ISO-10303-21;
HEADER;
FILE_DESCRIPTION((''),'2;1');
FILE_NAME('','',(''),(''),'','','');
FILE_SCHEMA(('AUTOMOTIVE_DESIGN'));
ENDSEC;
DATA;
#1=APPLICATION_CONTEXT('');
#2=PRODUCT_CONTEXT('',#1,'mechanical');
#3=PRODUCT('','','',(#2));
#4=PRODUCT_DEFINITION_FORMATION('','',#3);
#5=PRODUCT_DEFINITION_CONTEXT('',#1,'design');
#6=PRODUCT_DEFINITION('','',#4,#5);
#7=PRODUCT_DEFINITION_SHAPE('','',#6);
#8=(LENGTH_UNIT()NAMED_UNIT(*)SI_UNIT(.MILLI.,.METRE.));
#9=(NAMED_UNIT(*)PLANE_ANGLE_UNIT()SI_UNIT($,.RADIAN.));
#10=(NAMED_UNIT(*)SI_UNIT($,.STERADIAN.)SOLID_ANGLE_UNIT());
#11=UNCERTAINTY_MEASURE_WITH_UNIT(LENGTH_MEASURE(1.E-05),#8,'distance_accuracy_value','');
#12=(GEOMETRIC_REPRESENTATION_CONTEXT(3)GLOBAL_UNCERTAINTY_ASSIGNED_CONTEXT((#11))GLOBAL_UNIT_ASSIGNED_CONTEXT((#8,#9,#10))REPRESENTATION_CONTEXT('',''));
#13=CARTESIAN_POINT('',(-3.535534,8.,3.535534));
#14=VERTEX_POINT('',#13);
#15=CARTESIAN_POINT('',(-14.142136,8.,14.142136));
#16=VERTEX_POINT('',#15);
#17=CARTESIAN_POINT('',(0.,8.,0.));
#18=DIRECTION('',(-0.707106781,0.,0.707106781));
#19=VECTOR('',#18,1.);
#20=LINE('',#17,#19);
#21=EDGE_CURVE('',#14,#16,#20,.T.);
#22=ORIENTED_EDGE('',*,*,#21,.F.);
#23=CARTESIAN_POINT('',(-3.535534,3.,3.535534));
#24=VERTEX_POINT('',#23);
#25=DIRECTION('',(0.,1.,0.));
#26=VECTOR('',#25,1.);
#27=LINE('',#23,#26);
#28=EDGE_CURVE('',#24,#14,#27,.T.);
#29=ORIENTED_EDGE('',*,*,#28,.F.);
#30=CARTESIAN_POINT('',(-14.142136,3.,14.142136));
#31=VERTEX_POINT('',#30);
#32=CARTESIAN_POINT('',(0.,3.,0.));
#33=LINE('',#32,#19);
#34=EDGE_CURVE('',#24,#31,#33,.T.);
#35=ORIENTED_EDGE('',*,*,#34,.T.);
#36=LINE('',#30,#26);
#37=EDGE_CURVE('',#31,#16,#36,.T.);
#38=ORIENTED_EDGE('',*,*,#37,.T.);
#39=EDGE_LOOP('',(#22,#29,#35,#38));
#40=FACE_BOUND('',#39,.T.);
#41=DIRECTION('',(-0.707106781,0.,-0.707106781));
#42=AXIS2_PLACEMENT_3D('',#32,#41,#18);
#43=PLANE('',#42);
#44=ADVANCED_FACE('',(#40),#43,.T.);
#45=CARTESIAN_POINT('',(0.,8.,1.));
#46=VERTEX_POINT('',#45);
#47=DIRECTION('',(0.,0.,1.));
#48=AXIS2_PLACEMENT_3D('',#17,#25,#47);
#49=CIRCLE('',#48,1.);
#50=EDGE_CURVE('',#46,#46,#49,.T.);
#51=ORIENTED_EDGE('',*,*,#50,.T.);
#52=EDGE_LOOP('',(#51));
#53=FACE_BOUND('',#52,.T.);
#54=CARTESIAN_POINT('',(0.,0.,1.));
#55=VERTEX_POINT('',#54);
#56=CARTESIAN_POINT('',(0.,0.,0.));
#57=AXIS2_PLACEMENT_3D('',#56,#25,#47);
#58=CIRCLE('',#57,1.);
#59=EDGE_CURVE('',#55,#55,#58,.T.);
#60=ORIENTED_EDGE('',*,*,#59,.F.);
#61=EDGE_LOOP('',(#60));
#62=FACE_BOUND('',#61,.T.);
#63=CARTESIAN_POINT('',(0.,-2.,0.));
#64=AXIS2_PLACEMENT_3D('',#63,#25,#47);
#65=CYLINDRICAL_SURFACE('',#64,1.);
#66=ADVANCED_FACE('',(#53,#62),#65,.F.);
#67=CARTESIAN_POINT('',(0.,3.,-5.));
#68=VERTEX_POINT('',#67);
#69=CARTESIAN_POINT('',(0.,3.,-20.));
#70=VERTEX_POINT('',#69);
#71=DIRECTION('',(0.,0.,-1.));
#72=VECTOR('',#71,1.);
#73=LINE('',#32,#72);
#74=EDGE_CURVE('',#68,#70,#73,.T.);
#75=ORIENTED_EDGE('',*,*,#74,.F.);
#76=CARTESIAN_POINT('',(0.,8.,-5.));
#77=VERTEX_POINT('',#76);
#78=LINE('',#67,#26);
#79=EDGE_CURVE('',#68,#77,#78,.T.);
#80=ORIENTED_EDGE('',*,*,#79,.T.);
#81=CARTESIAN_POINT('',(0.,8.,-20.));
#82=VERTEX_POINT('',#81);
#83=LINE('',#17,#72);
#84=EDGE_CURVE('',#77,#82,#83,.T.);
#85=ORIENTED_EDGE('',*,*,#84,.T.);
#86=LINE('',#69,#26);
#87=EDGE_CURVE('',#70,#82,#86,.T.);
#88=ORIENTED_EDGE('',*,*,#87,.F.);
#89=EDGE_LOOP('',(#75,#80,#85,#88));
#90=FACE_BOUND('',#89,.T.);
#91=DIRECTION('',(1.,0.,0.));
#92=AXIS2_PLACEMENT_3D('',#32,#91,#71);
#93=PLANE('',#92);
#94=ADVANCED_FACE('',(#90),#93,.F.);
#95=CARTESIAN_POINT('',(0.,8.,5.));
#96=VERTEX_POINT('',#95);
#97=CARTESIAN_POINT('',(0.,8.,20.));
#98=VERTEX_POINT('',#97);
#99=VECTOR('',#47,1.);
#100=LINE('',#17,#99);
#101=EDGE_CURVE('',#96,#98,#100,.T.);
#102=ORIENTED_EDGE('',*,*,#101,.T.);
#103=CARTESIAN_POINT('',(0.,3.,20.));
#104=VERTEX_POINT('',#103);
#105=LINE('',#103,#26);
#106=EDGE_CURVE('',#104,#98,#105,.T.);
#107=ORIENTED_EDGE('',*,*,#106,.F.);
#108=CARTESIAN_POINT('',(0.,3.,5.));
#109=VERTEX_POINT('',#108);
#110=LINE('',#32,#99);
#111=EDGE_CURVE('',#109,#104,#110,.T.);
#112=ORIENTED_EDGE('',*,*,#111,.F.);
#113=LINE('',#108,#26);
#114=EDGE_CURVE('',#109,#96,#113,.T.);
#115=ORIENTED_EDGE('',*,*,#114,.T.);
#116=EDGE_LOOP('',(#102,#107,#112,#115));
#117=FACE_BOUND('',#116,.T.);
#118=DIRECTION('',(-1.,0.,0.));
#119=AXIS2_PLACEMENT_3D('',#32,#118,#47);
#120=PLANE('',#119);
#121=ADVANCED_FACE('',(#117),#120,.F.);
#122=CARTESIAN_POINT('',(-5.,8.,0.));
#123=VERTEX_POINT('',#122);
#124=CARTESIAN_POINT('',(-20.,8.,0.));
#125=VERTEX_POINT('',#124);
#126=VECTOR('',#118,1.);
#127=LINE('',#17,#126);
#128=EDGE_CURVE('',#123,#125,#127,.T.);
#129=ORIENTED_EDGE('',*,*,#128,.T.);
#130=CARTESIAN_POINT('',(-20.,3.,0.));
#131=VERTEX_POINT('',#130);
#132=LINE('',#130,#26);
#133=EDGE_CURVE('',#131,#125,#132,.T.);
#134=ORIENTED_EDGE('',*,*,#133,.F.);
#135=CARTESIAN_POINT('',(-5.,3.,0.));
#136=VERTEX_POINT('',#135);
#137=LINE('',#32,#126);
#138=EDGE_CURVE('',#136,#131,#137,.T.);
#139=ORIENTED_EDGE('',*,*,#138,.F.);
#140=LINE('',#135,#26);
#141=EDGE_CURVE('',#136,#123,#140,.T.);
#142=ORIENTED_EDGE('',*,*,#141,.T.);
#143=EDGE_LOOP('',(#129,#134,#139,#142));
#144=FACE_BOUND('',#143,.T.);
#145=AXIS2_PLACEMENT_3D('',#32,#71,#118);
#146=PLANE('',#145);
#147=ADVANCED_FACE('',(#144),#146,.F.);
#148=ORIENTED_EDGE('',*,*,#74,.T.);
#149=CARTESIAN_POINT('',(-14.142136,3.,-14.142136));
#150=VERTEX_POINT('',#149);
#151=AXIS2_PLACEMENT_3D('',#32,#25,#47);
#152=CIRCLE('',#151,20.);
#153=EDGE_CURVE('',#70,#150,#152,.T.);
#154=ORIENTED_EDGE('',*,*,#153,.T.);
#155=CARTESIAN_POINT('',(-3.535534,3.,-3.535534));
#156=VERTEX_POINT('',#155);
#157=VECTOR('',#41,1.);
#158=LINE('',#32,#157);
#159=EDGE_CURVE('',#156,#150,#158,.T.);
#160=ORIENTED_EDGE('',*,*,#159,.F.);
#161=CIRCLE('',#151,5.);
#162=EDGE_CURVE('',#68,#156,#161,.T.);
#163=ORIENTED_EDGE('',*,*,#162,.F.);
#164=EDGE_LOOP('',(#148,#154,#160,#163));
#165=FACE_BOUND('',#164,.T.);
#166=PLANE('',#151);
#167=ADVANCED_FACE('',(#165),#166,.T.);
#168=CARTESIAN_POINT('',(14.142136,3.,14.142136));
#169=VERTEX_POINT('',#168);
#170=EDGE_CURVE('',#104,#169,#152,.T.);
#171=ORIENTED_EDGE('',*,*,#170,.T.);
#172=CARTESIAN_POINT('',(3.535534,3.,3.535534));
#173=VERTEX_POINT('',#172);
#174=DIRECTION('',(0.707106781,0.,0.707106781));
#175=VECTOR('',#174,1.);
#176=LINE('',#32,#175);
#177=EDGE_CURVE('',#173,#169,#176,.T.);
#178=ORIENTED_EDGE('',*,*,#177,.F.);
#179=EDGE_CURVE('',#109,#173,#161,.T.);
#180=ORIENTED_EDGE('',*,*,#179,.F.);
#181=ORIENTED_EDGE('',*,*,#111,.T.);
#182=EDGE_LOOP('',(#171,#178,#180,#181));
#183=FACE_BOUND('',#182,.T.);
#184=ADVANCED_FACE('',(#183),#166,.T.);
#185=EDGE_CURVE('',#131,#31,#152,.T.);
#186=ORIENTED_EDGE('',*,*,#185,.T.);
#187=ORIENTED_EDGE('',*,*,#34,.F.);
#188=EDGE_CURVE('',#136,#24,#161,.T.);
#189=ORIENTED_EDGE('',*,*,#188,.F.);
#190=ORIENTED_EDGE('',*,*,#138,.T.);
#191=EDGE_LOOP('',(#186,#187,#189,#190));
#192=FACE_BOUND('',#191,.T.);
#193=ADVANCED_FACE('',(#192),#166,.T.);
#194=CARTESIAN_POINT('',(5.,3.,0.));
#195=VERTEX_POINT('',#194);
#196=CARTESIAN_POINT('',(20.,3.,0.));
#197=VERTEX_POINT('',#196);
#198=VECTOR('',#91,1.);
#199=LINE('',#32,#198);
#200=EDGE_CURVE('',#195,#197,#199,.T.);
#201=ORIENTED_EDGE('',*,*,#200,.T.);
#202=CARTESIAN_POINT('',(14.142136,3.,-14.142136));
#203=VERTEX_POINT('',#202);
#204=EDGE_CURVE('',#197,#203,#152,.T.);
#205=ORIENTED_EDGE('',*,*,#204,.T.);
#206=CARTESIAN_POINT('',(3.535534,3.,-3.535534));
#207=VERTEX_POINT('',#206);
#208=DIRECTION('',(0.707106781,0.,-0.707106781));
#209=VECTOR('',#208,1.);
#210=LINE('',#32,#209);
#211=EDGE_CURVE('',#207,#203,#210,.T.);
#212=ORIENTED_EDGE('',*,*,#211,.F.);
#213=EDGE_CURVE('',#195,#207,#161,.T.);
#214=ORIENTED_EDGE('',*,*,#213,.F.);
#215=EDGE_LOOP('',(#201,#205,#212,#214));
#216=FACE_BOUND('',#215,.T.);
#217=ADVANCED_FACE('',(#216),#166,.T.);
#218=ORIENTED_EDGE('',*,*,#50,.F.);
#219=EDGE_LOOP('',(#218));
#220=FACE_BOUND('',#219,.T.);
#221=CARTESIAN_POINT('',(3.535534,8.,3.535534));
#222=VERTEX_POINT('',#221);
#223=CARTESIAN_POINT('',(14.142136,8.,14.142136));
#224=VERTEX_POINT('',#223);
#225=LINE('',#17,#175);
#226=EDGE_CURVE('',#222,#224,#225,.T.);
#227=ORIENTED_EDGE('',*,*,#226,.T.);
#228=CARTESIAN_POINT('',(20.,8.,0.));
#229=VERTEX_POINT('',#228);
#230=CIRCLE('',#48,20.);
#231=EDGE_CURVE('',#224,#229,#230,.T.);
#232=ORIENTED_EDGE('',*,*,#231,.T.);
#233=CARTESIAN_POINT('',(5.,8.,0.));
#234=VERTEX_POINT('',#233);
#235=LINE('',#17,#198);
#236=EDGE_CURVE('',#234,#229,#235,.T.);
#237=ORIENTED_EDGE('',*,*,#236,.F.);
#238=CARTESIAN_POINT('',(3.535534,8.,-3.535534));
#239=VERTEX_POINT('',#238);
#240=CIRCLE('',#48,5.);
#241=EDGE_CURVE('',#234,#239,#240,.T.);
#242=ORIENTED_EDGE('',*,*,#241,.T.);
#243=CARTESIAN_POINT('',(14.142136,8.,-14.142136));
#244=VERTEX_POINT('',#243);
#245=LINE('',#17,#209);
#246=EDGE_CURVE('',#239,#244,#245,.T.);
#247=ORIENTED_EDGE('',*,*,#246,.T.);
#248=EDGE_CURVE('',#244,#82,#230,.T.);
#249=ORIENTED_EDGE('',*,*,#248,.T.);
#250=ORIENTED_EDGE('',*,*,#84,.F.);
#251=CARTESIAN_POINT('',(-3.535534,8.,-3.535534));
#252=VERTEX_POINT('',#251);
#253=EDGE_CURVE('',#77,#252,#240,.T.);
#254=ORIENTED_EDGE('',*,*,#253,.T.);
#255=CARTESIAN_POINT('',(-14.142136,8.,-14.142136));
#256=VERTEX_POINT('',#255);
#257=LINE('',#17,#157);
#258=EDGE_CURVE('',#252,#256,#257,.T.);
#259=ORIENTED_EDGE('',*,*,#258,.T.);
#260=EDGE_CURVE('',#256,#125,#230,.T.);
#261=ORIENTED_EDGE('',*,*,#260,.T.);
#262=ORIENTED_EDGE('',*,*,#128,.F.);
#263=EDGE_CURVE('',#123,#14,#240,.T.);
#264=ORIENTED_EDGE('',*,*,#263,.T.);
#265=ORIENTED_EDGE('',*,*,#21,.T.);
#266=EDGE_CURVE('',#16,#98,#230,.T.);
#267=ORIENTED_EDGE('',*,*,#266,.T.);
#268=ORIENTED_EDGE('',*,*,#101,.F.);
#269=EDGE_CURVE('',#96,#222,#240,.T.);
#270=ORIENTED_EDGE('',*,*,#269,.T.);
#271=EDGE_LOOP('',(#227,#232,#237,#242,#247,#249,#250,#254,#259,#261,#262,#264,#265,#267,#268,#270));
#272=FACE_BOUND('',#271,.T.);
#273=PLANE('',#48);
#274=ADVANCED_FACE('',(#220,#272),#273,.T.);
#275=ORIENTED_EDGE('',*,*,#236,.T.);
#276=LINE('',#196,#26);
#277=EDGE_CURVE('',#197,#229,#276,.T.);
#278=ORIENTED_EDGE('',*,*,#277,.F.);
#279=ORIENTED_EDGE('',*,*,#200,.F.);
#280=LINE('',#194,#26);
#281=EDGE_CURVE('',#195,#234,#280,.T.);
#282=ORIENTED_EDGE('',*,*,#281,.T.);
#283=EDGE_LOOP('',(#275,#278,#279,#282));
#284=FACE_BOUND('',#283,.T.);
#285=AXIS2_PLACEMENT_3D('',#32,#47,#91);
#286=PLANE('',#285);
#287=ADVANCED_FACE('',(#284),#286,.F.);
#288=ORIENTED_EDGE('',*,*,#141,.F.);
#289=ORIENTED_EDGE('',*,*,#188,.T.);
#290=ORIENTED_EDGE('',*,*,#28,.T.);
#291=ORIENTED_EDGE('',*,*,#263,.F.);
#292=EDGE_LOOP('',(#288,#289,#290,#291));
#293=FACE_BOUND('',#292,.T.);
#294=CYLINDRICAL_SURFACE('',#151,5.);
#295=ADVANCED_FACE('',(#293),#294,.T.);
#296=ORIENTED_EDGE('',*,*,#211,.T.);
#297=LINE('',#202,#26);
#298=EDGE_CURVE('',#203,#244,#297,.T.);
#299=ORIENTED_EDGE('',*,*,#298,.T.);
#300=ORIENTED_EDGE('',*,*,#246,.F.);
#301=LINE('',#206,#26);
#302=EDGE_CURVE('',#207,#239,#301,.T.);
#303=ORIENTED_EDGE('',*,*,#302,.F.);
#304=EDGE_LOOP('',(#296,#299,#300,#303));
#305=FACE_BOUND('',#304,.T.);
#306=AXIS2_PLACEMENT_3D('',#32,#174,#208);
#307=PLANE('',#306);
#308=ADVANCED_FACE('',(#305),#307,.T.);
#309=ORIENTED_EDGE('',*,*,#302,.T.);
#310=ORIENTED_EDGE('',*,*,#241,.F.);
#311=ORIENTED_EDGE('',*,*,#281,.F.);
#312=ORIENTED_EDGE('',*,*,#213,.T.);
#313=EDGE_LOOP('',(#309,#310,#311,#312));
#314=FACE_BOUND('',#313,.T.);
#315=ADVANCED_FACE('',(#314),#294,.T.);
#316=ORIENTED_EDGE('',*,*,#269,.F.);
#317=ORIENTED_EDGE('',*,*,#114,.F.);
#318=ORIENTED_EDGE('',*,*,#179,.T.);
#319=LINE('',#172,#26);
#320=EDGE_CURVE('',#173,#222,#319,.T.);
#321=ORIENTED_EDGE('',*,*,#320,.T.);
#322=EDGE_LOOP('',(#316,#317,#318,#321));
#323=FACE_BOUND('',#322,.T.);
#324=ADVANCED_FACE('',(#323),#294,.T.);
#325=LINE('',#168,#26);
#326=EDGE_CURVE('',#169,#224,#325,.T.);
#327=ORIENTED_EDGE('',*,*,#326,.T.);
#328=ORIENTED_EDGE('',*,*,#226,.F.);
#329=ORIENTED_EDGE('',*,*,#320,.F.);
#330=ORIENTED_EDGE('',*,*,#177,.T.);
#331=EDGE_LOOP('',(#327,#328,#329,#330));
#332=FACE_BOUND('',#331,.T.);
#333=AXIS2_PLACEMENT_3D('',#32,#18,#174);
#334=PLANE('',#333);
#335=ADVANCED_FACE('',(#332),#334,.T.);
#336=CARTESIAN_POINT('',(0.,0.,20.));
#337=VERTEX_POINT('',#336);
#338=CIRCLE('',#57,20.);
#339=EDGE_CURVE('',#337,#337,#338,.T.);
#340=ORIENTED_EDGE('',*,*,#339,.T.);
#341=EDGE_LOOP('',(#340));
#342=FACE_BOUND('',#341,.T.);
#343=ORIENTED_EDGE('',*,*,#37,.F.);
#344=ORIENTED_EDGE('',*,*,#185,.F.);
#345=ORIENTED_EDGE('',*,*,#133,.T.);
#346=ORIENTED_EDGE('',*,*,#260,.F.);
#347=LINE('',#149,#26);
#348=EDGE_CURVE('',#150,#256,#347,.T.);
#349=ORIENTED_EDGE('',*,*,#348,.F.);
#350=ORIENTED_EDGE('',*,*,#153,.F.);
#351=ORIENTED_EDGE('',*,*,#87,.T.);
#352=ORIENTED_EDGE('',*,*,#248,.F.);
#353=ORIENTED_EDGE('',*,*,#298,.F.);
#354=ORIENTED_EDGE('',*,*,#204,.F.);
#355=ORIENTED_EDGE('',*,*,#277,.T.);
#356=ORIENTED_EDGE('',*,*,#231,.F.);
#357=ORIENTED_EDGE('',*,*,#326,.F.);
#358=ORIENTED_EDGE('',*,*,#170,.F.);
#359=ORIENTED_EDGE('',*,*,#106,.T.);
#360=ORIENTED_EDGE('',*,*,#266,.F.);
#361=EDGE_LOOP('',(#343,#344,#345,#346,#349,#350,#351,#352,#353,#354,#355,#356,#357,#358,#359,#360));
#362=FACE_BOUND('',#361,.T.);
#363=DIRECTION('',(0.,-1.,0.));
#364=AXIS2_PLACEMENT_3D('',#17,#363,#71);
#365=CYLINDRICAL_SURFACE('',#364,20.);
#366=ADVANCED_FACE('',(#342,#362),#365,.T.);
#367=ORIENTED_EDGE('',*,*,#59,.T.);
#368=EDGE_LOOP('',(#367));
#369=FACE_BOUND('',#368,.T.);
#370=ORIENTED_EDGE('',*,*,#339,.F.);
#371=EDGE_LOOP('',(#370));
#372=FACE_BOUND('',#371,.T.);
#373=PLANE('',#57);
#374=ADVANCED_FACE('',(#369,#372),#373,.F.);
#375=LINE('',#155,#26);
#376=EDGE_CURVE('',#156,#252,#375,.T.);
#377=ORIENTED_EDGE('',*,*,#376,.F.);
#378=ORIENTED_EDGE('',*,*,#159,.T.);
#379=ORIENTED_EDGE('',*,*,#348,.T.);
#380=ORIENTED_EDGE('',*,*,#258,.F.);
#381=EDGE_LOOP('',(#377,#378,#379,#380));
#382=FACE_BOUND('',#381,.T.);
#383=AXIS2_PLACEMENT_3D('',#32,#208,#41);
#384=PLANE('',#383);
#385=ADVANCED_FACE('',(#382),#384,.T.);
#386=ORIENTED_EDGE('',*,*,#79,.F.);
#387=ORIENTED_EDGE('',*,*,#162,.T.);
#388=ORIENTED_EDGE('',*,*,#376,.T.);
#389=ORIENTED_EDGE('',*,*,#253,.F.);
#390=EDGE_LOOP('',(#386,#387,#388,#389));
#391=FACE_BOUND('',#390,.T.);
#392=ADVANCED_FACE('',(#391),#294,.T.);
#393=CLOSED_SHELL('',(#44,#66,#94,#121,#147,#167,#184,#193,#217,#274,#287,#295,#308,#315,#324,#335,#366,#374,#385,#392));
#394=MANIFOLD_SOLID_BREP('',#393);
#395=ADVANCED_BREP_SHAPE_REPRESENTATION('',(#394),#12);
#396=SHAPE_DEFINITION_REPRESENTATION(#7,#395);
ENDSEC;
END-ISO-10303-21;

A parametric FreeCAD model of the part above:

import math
import FreeCAD as App
import Part
import Sketcher
Q = App.Units.Quantity

doc = App.newDocument("Part")
body = doc.addObject("PartDesign::Body", "Body")

# Sketch on XZ plane
sketch1 = doc.addObject("Sketcher::SketchObject", "Sketch")
body.addObject(sketch1)
sketch1.AttachmentSupport = (doc.XZ_Plane, [""])
sketch1.MapMode = "FlatFace"
sketch1.addGeometry(Part.Circle(App.Vector(0, 0, 0), App.Vector(0, 0, 1), 20), False)
sketch1.addConstraint([
    Sketcher.Constraint("Coincident", 0, 3, -1, 1),
    Sketcher.Constraint("Diameter", 0, Q("40 mm")),
])
pad1 = doc.addObject("PartDesign::Pad", "Pad")
body.addObject(pad1)
pad1.Profile = sketch1
pad1.Length = 8
pad1.Reversed = True

# Sketch on XZ plane
sketch2 = doc.addObject("Sketcher::SketchObject", "Sketch001")
body.addObject(sketch2)
sketch2.AttachmentSupport = (doc.XZ_Plane, [""])
sketch2.MapMode = "FlatFace"
sketch2.AttachmentOffset = App.Placement(App.Vector(0, 0, -3), App.Rotation())
sketch2.addGeometry([
    Part.ArcOfCircle(Part.Circle(App.Vector(0, 0, 0), App.Vector(0, 0, 1), 5), math.radians(-135), math.radians(-90)),  # 0
    Part.LineSegment(App.Vector(0, -5, 0), App.Vector(0, -20, 0)),  # 1
    Part.ArcOfCircle(Part.Circle(App.Vector(0, 0, 0), App.Vector(0, 0, 1), 20), math.radians(-135), math.radians(-90)),  # 2
    Part.LineSegment(App.Vector(-14.1, -14.1, 0), App.Vector(-3.5, -3.5, 0)),  # 3
    Part.ArcOfCircle(Part.Circle(App.Vector(0, 0, 0), App.Vector(0, 0, 1), 5), math.radians(135), math.radians(180)),  # 4
    Part.LineSegment(App.Vector(-5, 0, 0), App.Vector(-20, 0, 0)),  # 5
    Part.ArcOfCircle(Part.Circle(App.Vector(0, 0, 0), App.Vector(0, 0, 1), 20), math.radians(135), math.radians(180)),  # 6
    Part.LineSegment(App.Vector(-14.1, 14.1, 0), App.Vector(-3.5, 3.5, 0)),  # 7
    Part.ArcOfCircle(Part.Circle(App.Vector(0, 0, 0), App.Vector(0, 0, 1), 5), math.radians(45), math.radians(90)),  # 8
    Part.LineSegment(App.Vector(0, 5, 0), App.Vector(0, 20, 0)),  # 9
    Part.ArcOfCircle(Part.Circle(App.Vector(0, 0, 0), App.Vector(0, 0, 1), 20), math.radians(45), math.radians(90)),  # 10
    Part.LineSegment(App.Vector(14.1, 14.1, 0), App.Vector(3.5, 3.5, 0)),  # 11
    Part.ArcOfCircle(Part.Circle(App.Vector(0, 0, 0), App.Vector(0, 0, 1), 5), math.radians(-45), math.radians(0)),  # 12
    Part.LineSegment(App.Vector(5, 0, 0), App.Vector(20, 0, 0)),  # 13
    Part.ArcOfCircle(Part.Circle(App.Vector(0, 0, 0), App.Vector(0, 0, 1), 20), math.radians(-45), math.radians(0)),  # 14
    Part.LineSegment(App.Vector(14.1, -14.1, 0), App.Vector(3.5, -3.5, 0)),  # 15
], False)
sketch2.addConstraint([
    Sketcher.Constraint("Coincident", 0, 2, 1, 1),
    Sketcher.Constraint("Coincident", 1, 2, 2, 2),
    Sketcher.Constraint("Coincident", 2, 1, 3, 1),
    Sketcher.Constraint("Coincident", 3, 2, 0, 1),
    Sketcher.Constraint("Coincident", 4, 2, 5, 1),
    Sketcher.Constraint("Coincident", 5, 2, 6, 2),
    Sketcher.Constraint("Coincident", 6, 1, 7, 1),
    Sketcher.Constraint("Coincident", 7, 2, 4, 1),
    Sketcher.Constraint("Coincident", 8, 2, 9, 1),
    Sketcher.Constraint("Coincident", 9, 2, 10, 2),
    Sketcher.Constraint("Coincident", 10, 1, 11, 1),
    Sketcher.Constraint("Coincident", 11, 2, 8, 1),
    Sketcher.Constraint("Coincident", 12, 2, 13, 1),
    Sketcher.Constraint("Coincident", 13, 2, 14, 2),
    Sketcher.Constraint("Coincident", 14, 1, 15, 1),
    Sketcher.Constraint("Coincident", 15, 2, 12, 1),
    Sketcher.Constraint("Vertical", 1),
    Sketcher.Constraint("Horizontal", 5),
    Sketcher.Constraint("Vertical", 9),
    Sketcher.Constraint("Horizontal", 13),
    Sketcher.Constraint("Coincident", 0, 3, -1, 1),
    Sketcher.Constraint("Coincident", 2, 3, -1, 1),
    Sketcher.Constraint("Coincident", 4, 3, -1, 1),
    Sketcher.Constraint("Coincident", 6, 3, -1, 1),
    Sketcher.Constraint("Coincident", 8, 3, -1, 1),
    Sketcher.Constraint("Coincident", 10, 3, -1, 1),
    Sketcher.Constraint("Coincident", 12, 3, -1, 1),
    Sketcher.Constraint("Coincident", 14, 3, -1, 1),
    Sketcher.Constraint("Equal", 0, 4),
    Sketcher.Constraint("Equal", 2, 6),
    Sketcher.Constraint("Equal", 4, 8),
    Sketcher.Constraint("Equal", 6, 10),
    Sketcher.Constraint("Equal", 8, 12),
    Sketcher.Constraint("Equal", 10, 14),
    Sketcher.Constraint("PointOnObject", 0, 2, -2),
    Sketcher.Constraint("PointOnObject", 4, 2, -1),
    Sketcher.Constraint("PointOnObject", 8, 2, -2),
    Sketcher.Constraint("PointOnObject", 12, 2, -1),
    Sketcher.Constraint("Perpendicular", 3, 7),
    Sketcher.Constraint("Perpendicular", 7, 11),
    Sketcher.Constraint("Perpendicular", 11, 15),
    Sketcher.Constraint("Horizontal", 6, 1, 10, 1),
    Sketcher.Constraint("Horizontal", 7, 2, 11, 2),
    Sketcher.Constraint("Horizontal", 2, 1, 14, 1),
    Sketcher.Constraint("Vertical", 2, 1, 6, 1),
    Sketcher.Constraint("Radius", 0, Q("5 mm")),
    Sketcher.Constraint("Radius", 2, Q("20 mm")),
    Sketcher.Constraint("DistanceX", 2, 1, -1, 1, Q("14.142136 mm")),
])
pocket1 = doc.addObject("PartDesign::Pocket", "Pocket")
body.addObject(pocket1)
pocket1.Profile = sketch2
pocket1.Length = 5

# Sketch on XZ plane
sketch3 = doc.addObject("Sketcher::SketchObject", "Sketch002")
body.addObject(sketch3)
sketch3.AttachmentSupport = (doc.XZ_Plane, [""])
sketch3.MapMode = "FlatFace"
sketch3.AttachmentOffset = App.Placement(App.Vector(0, 0, -8), App.Rotation())
sketch3.addGeometry(Part.Circle(App.Vector(0, 0, 0), App.Vector(0, 0, 1), 1), False)
sketch3.addConstraint([
    Sketcher.Constraint("Coincident", 0, 3, -1, 1),
    Sketcher.Constraint("Diameter", 0, Q("2 mm")),
])
pocket2 = doc.addObject("PartDesign::Pocket", "Pocket001")
body.addObject(pocket2)
pocket2.Profile = sketch3
pocket2.Length = 10
pocket2.Reversed = True

doc.recompute()
